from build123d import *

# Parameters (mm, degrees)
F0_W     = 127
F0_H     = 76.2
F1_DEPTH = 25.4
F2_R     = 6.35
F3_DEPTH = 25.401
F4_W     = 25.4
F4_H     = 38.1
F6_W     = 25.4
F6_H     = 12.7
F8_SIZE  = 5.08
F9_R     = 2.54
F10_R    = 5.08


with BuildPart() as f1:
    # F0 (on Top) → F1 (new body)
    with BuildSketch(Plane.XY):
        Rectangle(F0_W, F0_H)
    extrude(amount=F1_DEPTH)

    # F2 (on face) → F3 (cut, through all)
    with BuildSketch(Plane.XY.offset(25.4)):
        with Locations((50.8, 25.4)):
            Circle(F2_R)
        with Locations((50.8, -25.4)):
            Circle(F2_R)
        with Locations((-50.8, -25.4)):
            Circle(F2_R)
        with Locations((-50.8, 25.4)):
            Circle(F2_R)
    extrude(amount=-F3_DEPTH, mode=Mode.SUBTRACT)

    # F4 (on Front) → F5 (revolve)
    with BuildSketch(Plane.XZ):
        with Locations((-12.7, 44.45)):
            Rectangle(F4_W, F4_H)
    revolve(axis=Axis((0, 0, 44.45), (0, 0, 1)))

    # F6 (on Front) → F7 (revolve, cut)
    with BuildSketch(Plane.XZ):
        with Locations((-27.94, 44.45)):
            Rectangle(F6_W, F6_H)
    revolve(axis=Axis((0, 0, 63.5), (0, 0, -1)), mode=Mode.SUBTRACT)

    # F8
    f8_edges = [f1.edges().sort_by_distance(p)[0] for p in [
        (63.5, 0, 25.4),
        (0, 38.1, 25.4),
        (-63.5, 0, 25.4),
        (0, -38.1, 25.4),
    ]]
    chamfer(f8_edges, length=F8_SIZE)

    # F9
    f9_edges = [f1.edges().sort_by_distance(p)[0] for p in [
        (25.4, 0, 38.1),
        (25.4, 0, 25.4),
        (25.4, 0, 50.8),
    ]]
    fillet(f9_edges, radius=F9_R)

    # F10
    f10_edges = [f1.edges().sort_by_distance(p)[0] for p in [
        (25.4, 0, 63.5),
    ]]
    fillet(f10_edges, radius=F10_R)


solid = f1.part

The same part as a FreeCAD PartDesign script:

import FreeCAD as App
import Part
import Sketcher

V = App.Vector
Q = App.Units.Quantity


def edges_at(feature, points):
    """Names of the edges that pass closest to the given points."""
    edges = feature.Shape.Edges
    near = lambda p: min(range(len(edges)), key=lambda i: edges[i].distToShape(Part.Vertex(*p))[0])
    return sorted({f"Edge{near(p) + 1}" for p in points})


def add_polygon(sketch, points):
    """Adds a closed chain of lines whose ends are joined by coincident constraints."""
    first, n = sketch.GeometryCount, len(points)
    for a, b in zip(points, points[1:] + points[:1]):
        sketch.addGeometry(Part.LineSegment(App.Vector(*a, 0), App.Vector(*b, 0)), False)
    for i in range(n):
        sketch.addConstraint(Sketcher.Constraint("Coincident", first + i, 2, first + (i + 1) % n, 1))

doc = App.newDocument("Part")
body = doc.addObject("PartDesign::Body", "Body")

# Sketch on XY plane
sketch1 = doc.addObject("Sketcher::SketchObject", "Sketch")
body.addObject(sketch1)
sketch1.AttachmentSupport = (doc.XY_Plane, [""])
sketch1.MapMode = "FlatFace"
add_polygon(sketch1, [(-64, 38), (-64, -38), (64, -38), (64, 38)])  # lines 0-3
sketch1.addConstraint(Sketcher.Constraint("Vertical", 0))
sketch1.addConstraint(Sketcher.Constraint("Horizontal", 1))
sketch1.addConstraint(Sketcher.Constraint("Vertical", 2))
sketch1.addConstraint(Sketcher.Constraint("Horizontal", 3))
sketch1.addConstraint(Sketcher.Constraint("Symmetric", 0, 2, 2, 2, -1, 1))
sketch1.addConstraint(Sketcher.Constraint("DistanceX", 1, 1, 1, 2, Q("5 in")))
sketch1.addConstraint(Sketcher.Constraint("DistanceY", 0, 2, 0, 1, Q("3 in")))
pad1 = doc.addObject("PartDesign::Pad", "Pad")
body.addObject(pad1)
pad1.Profile = sketch1
pad1.Length = Q("1 in")

# Sketch on XY plane
sketch2 = doc.addObject("Sketcher::SketchObject", "Sketch001")
body.addObject(sketch2)
sketch2.AttachmentSupport = (doc.XY_Plane, [""])
sketch2.MapMode = "FlatFace"
sketch2.AttachmentOffset = App.Placement(V(0, 0, 1 * 25.4), App.Rotation())
sketch2.addGeometry(Part.Circle(V(51, 25, 0), V(0, 0, 1), 6), False)
sketch2.addGeometry(Part.Circle(V(51, -25, 0), V(0, 0, 1), 6), False)
sketch2.addGeometry(Part.Circle(V(-51, -25, 0), V(0, 0, 1), 6), False)
sketch2.addGeometry(Part.Circle(V(-51, 25, 0), V(0, 0, 1), 6), False)
sketch2.addConstraint(Sketcher.Constraint("Equal", 0, 1))
sketch2.addConstraint(Sketcher.Constraint("Equal", 1, 2))
sketch2.addConstraint(Sketcher.Constraint("Equal", 2, 3))
sketch2.addConstraint(Sketcher.Constraint("Symmetric", 0, 3, 2, 3, -1, 1))
sketch2.addConstraint(Sketcher.Constraint("Symmetric", 1, 3, 3, 3, -1, 1))
sketch2.addConstraint(Sketcher.Constraint("Symmetric", 1, 3, 2, 3, -2))
sketch2.addConstraint(Sketcher.Constraint("Diameter", 0, Q("0.5 in")))
sketch2.addConstraint(Sketcher.Constraint("DistanceX", -1, 1, 0, 3, Q("2 in")))
sketch2.addConstraint(Sketcher.Constraint("DistanceY", -1, 1, 0, 3, Q("1 in")))
pocket1 = doc.addObject("PartDesign::Pocket", "Pocket")
body.addObject(pocket1)
pocket1.Profile = sketch2
pocket1.Type = "ThroughAll"

# Sketch on XZ plane
sketch3 = doc.addObject("Sketcher::SketchObject", "Sketch002")
body.addObject(sketch3)
sketch3.AttachmentSupport = (doc.XZ_Plane, [""])
sketch3.MapMode = "FlatFace"
add_polygon(sketch3, [(-25, 64), (-25, 25), (0, 25), (0, 64)])  # lines 0-3
sketch3.addConstraint(Sketcher.Constraint("Vertical", 0))
sketch3.addConstraint(Sketcher.Constraint("Horizontal", 1))
sketch3.addConstraint(Sketcher.Constraint("Vertical", 2))
sketch3.addConstraint(Sketcher.Constraint("Horizontal", 3))
sketch3.addConstraint(Sketcher.Constraint("PointOnObject", 1, 2, -2))
sketch3.addConstraint(Sketcher.Constraint("DistanceX", 1, 1, 1, 2, Q("1 in")))
sketch3.addConstraint(Sketcher.Constraint("DistanceY", 0, 2, 0, 1, Q("1.5 in")))
sketch3.addConstraint(Sketcher.Constraint("DistanceY", -1, 1, 0, 2, Q("1 in")))
revolution = doc.addObject("PartDesign::Revolution", "Revolution")
body.addObject(revolution)
revolution.Profile = sketch3
revolution.ReferenceAxis = (sketch3, ["V_Axis"])
revolution.Angle = 360

# Sketch on XZ plane
sketch4 = doc.addObject("Sketcher::SketchObject", "Sketch003")
body.addObject(sketch4)
sketch4.AttachmentSupport = (doc.XZ_Plane, [""])
sketch4.MapMode = "FlatFace"
add_polygon(sketch4, [(-41, 51), (-41, 38), (-15, 38), (-15, 51)])  # lines 0-3
sketch4.addConstraint(Sketcher.Constraint("Vertical", 0))
sketch4.addConstraint(Sketcher.Constraint("Horizontal", 1))
sketch4.addConstraint(Sketcher.Constraint("Vertical", 2))
sketch4.addConstraint(Sketcher.Constraint("Horizontal", 3))
sketch4.addConstraint(Sketcher.Constraint("DistanceX", 1, 1, 1, 2, Q("1 in")))
sketch4.addConstraint(Sketcher.Constraint("DistanceY", 0, 2, 0, 1, Q("0.5 in")))
sketch4.addConstraint(Sketcher.Constraint("DistanceY", -1, 1, 2, 2, Q("2 in")))
sketch4.addConstraint(Sketcher.Constraint("DistanceX", 0, 2, -1, 1, Q("1.6 in")))
groove = doc.addObject("PartDesign::Groove", "Groove")
body.addObject(groove)
groove.Profile = sketch4
groove.ReferenceAxis = (sketch4, ["V_Axis"])
groove.Angle = 360
doc.recompute()

chamfer = doc.addObject("PartDesign::Chamfer", "Chamfer")
body.addObject(chamfer)
chamfer.Base = (groove, edges_at(groove, [
    (63.5, 0, 25.4),
    (0, 38.1, 25.4),
    (-63.5, 0, 25.4),
    (0, -38.1, 25.4),
]))
chamfer.Size = Q("0.2 in")
doc.recompute()

fillet = doc.addObject("PartDesign::Fillet", "Fillet")
body.addObject(fillet)
fillet.Base = (chamfer, edges_at(chamfer, [(25.4, 0, 38.1), (25.4, 0, 25.4), (25.4, 0, 50.8)]))
fillet.Radius = Q("0.1 in")
doc.recompute()

fillet2 = doc.addObject("PartDesign::Fillet", "Fillet001")
body.addObject(fillet2)
fillet2.Base = (fillet, edges_at(fillet, [(25.4, 0, 63.5)]))
fillet2.Radius = Q("0.2 in")

doc.recompute()
